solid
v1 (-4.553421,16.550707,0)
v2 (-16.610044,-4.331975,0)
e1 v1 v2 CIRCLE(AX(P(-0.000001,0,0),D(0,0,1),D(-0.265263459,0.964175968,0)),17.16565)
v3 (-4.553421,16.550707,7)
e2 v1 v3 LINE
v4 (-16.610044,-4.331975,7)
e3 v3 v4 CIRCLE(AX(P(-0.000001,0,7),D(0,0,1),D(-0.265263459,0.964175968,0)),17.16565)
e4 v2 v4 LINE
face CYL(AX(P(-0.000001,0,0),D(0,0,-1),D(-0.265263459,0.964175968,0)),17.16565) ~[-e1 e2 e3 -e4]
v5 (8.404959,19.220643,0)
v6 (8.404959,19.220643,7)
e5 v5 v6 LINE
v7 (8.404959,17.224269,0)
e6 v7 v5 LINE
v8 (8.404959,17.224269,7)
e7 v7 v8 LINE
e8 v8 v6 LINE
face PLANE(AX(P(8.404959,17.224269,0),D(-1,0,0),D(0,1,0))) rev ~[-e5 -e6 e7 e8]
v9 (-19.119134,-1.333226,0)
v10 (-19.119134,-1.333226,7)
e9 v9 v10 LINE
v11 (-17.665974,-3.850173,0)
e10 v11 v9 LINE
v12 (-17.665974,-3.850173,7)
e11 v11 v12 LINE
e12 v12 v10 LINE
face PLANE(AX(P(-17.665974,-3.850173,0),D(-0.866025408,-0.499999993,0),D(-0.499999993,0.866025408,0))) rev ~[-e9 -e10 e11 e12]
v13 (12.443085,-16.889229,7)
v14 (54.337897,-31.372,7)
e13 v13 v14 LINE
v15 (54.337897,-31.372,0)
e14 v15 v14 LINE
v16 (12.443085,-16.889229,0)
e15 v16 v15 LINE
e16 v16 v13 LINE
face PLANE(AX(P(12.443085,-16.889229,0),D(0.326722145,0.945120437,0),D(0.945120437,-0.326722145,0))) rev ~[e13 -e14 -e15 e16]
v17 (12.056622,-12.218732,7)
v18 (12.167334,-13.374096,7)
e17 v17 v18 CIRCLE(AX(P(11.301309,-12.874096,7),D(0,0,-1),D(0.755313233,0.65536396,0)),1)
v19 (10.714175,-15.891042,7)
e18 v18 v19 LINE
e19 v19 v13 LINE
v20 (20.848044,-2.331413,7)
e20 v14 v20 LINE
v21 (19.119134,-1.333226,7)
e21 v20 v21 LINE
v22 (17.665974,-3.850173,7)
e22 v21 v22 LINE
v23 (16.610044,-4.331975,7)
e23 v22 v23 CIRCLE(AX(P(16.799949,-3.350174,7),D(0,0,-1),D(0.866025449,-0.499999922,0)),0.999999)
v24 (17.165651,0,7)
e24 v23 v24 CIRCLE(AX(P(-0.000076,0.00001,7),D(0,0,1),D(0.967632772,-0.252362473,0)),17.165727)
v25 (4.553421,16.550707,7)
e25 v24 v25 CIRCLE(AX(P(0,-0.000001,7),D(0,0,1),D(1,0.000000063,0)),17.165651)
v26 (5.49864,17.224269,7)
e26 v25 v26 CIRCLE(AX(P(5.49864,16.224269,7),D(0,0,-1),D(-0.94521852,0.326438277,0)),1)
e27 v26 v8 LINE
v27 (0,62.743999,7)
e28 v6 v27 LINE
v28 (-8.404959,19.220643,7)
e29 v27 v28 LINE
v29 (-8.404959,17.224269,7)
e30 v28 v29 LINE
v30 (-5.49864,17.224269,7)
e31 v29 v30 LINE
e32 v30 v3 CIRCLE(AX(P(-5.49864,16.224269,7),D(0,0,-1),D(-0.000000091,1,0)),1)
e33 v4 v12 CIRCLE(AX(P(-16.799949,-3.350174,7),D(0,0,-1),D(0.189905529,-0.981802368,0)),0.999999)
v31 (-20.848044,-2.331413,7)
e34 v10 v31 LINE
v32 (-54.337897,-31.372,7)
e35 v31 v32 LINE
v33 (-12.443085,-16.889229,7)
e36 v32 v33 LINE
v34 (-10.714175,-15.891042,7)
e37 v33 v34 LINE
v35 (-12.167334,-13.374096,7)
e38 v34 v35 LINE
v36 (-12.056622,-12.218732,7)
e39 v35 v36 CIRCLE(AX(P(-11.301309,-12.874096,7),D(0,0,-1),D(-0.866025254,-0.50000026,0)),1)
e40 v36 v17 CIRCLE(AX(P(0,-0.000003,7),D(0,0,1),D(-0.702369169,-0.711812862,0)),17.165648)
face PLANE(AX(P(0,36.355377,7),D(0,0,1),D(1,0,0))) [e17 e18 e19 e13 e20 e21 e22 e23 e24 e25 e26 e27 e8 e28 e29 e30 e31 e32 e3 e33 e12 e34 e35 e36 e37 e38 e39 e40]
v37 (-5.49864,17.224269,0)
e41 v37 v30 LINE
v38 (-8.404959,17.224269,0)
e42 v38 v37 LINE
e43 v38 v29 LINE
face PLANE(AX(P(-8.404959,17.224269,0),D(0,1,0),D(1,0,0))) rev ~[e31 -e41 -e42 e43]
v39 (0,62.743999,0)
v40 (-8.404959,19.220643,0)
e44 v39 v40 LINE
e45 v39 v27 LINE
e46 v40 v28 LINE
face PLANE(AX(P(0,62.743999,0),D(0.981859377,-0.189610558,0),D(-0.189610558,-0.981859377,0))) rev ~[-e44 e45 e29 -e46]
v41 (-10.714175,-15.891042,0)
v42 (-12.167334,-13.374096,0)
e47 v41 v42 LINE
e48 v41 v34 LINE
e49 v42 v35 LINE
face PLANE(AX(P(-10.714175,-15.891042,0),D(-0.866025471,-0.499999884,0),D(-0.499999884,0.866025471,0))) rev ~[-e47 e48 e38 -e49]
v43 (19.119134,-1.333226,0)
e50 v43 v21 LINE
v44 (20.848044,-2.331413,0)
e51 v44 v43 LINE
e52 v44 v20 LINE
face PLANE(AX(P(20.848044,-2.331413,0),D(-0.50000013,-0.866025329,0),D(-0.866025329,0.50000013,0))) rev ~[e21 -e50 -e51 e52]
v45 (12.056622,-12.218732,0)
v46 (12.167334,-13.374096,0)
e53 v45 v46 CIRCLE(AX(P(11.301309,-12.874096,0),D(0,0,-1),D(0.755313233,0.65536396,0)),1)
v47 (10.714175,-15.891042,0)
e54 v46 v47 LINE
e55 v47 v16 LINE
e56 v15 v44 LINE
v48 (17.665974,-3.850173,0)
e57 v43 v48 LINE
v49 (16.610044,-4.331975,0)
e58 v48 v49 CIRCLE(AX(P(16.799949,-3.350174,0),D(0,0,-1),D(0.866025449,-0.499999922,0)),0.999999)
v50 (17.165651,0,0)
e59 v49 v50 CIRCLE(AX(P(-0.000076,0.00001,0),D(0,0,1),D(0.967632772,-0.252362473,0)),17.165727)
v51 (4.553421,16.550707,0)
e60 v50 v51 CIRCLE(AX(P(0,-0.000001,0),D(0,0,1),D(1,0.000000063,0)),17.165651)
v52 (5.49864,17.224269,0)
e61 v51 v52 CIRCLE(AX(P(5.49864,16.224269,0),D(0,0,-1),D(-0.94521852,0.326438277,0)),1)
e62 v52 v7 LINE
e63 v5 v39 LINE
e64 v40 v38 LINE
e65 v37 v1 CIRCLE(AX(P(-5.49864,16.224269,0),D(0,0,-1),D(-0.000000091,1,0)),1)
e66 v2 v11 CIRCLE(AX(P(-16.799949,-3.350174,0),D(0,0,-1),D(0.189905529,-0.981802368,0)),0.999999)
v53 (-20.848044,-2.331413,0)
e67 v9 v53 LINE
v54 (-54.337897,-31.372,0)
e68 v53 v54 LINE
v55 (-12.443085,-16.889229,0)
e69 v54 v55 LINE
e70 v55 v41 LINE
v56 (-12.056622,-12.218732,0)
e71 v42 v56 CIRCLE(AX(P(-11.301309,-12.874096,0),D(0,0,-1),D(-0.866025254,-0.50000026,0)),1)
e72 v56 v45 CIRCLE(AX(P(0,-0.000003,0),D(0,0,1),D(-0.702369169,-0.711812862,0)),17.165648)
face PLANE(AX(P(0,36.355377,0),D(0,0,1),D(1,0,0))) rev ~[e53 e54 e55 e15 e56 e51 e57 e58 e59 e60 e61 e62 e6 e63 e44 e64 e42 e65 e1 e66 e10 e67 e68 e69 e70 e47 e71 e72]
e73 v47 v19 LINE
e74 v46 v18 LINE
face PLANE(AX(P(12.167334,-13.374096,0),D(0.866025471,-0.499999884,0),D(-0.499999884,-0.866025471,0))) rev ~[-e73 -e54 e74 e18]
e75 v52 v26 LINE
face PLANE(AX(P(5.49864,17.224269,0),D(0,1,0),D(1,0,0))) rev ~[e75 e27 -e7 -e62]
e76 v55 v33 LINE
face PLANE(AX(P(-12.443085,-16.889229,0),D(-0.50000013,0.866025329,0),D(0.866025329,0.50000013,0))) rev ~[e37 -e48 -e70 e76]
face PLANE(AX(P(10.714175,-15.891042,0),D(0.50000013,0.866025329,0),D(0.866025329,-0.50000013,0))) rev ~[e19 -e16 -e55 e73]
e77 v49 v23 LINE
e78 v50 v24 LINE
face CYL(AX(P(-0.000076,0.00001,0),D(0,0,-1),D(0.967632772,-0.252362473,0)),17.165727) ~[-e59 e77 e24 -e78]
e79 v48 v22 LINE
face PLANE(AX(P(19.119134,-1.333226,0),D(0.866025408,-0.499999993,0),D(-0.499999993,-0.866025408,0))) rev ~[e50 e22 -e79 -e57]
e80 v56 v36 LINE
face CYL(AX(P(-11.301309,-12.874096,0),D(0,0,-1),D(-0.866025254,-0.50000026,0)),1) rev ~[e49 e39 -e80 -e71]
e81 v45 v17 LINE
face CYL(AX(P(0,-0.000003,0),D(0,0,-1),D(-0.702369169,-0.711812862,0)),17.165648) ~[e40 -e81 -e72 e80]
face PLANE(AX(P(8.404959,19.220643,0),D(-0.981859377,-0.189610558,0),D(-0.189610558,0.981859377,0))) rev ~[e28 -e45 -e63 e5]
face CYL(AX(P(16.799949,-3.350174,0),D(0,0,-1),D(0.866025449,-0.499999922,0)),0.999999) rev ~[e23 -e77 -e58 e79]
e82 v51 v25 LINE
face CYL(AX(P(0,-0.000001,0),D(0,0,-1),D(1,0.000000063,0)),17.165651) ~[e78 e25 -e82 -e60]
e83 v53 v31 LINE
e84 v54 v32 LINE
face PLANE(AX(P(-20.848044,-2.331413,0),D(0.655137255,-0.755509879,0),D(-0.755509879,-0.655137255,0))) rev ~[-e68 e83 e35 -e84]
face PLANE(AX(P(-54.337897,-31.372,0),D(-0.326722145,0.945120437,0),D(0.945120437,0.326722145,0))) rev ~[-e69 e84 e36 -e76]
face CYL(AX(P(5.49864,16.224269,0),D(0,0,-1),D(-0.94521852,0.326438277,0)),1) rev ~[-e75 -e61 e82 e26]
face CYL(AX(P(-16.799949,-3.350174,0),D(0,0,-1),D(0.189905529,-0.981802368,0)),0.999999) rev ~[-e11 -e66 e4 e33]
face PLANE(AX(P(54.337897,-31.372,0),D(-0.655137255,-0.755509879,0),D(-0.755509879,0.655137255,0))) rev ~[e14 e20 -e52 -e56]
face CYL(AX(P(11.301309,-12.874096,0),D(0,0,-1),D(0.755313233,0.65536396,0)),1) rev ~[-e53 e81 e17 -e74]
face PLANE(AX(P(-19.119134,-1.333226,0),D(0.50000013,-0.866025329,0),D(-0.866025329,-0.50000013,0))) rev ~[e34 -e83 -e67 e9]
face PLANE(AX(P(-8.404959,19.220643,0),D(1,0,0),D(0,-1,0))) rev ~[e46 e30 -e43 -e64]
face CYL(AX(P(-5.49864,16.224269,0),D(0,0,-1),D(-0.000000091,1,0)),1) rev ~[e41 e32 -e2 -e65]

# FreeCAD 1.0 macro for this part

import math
import FreeCAD as App
import Part
import Sketcher

V = App.Vector

doc = App.newDocument("Part")
params = doc.addObject("Spreadsheet::Sheet", "Params")
for row, (alias, value) in enumerate([
    ("sketch1_radius", "1 mm"),
    ("sketch1_radius2", "0.999999 mm"),
    ("sketch1_radius3", "1 mm"),
    ("sketch1_radius4", "1 mm"),
    ("sketch1_radius5", "0.999999 mm"),
    ("pad1_length", "7 mm"),
], start=1):
    params.set(f"A{row}", alias)
    params.set(f"B{row}", "=" + value)
    params.setAlias(f"B{row}", alias)

body = doc.addObject("PartDesign::Body", "Body")

# Sketch on XY plane
sketch1 = doc.addObject("Sketcher::SketchObject", "Sketch")
body.addObject(sketch1)
sketch1.AttachmentSupport = (doc.XY_Plane, [""])
sketch1.MapMode = "FlatFace"
sketch1.addGeometry([
    Part.LineSegment(V(-8.404959, 17.224269, 0), V(-5.49864, 17.224269, 0)),  # 0
    Part.ArcOfCircle(Part.Circle(V(-5.49864, 16.224269, 0), V(0, 0, 1), 1), math.radians(19.052735), math.radians(90.000005)),  # 1
    Part.ArcOfCircle(Part.Circle(V(-0.000001, 0, 0), V(0, 0, 1), 17.16565), math.radians(105.382608), math.radians(194.617388)),  # 2
    Part.ArcOfCircle(Part.Circle(V(-16.799949, -3.350174, 0), V(0, 0, 1), 0.999999), math.radians(-150.000005), math.radians(-79.052729)),  # 3
    Part.LineSegment(V(-17.665974, -3.850173, 0), V(-19.119134, -1.333226, 0)),  # 4
    Part.LineSegment(V(-19.119134, -1.333226, 0), V(-20.848044, -2.331413, 0)),  # 5
    Part.LineSegment(V(-20.848044, -2.331413, 0), V(-54.337897, -31.372, 0)),  # 6
    Part.LineSegment(V(-54.337897, -31.372, 0), V(-12.443085, -16.889229, 0)),  # 7
    Part.LineSegment(V(-12.443085, -16.889229, 0), V(-10.714175, -15.891042, 0)),  # 8
    Part.LineSegment(V(-10.714175, -15.891042, 0), V(-12.167334, -13.374096, 0)),  # 9
    Part.ArcOfCircle(Part.Circle(V(-11.301309, -12.874096, 0), V(0, 0, 1), 1), math.radians(139.052747), math.radians(210.000017)),  # 10
    Part.ArcOfCircle(Part.Circle(V(0, -0.000003, 0), V(0, 0, 1), 17.165648), math.radians(-134.617393), math.radians(-45.382607)),  # 11
    Part.ArcOfCircle(Part.Circle(V(11.301309, -12.874096, 0), V(0, 0, 1), 1), math.radians(-30.000017), math.radians(40.947253)),  # 12
    Part.LineSegment(V(12.167334, -13.374096, 0), V(10.714175, -15.891042, 0)),  # 13
    Part.LineSegment(V(10.714175, -15.891042, 0), V(12.443085, -16.889229, 0)),  # 14
    Part.LineSegment(V(12.443085, -16.889229, 0), V(54.337897, -31.372, 0)),  # 15
    Part.LineSegment(V(54.337897, -31.372, 0), V(20.848044, -2.331413, 0)),  # 16
    Part.LineSegment(V(20.848044, -2.331413, 0), V(19.119134, -1.333226, 0)),  # 17
    Part.LineSegment(V(19.119134, -1.333226, 0), V(17.665974, -3.850173, 0)),  # 18
    Part.ArcOfCircle(Part.Circle(V(16.799949, -3.350174, 0), V(0, 0, 1), 0.999999), math.radians(-100.947271), math.radians(-29.999995)),  # 19
    Part.ArcOfCircle(Part.Circle(V(-0.000076, 0.00001, 0), V(0, 0, 1), 17.165727), math.radians(-14.617355), math.radians(-0.000035)),  # 20
    Part.ArcOfCircle(Part.Circle(V(0, -0.000001, 0), V(0, 0, 1), 17.165651), math.radians(0.000004), math.radians(74.617388)),  # 21
    Part.ArcOfCircle(Part.Circle(V(5.49864, 16.224269, 0), V(0, 0, 1), 1), math.radians(89.999995), math.radians(160.947265)),  # 22
    Part.LineSegment(V(5.49864, 17.224269, 0), V(8.404959, 17.224269, 0)),  # 23
    Part.LineSegment(V(8.404959, 17.224269, 0), V(8.404959, 19.220643, 0)),  # 24
    Part.LineSegment(V(8.404959, 19.220643, 0), V(0, 62.743999, 0)),  # 25
    Part.LineSegment(V(0, 62.743999, 0), V(-8.404959, 19.220643, 0)),  # 26
    Part.LineSegment(V(-8.404959, 19.220643, 0), V(-8.404959, 17.224269, 0)),  # 27
], False)
sketch1.addConstraint([
    Sketcher.Constraint("Coincident", 0, 2, 1, 2),
    Sketcher.Constraint("Coincident", 1, 1, 2, 1),
    Sketcher.Constraint("Coincident", 2, 2, 3, 2),
    Sketcher.Constraint("Coincident", 3, 1, 4, 1),
    Sketcher.Constraint("Coincident", 4, 2, 5, 1),
    Sketcher.Constraint("Coincident", 5, 2, 6, 1),
    Sketcher.Constraint("Coincident", 6, 2, 7, 1),
    Sketcher.Constraint("Coincident", 7, 2, 8, 1),
    Sketcher.Constraint("Coincident", 8, 2, 9, 1),
    Sketcher.Constraint("Coincident", 9, 2, 10, 2),
    Sketcher.Constraint("Coincident", 10, 1, 11, 1),
    Sketcher.Constraint("Coincident", 11, 2, 12, 2),
    Sketcher.Constraint("Coincident", 12, 1, 13, 1),
    Sketcher.Constraint("Coincident", 13, 2, 14, 1),
    Sketcher.Constraint("Coincident", 14, 2, 15, 1),
    Sketcher.Constraint("Coincident", 15, 2, 16, 1),
    Sketcher.Constraint("Coincident", 16, 2, 17, 1),
    Sketcher.Constraint("Coincident", 17, 2, 18, 1),
    Sketcher.Constraint("Coincident", 18, 2, 19, 2),
    Sketcher.Constraint("Coincident", 19, 1, 20, 1),
    Sketcher.Constraint("Coincident", 20, 2, 21, 1),
    Sketcher.Constraint("Coincident", 21, 2, 22, 2),
    Sketcher.Constraint("Coincident", 22, 1, 23, 1),
    Sketcher.Constraint("Coincident", 23, 2, 24, 1),
    Sketcher.Constraint("Coincident", 24, 2, 25, 1),
    Sketcher.Constraint("Coincident", 25, 2, 26, 1),
    Sketcher.Constraint("Coincident", 26, 2, 27, 1),
    Sketcher.Constraint("Coincident", 27, 2, 0, 1),
    Sketcher.Constraint("Horizontal", 0),
    Sketcher.Constraint("Horizontal", 23),
    Sketcher.Constraint("Vertical", 24),
    Sketcher.Constraint("Vertical", 27),
    Sketcher.Constraint("Coincident", 2, 3, -1, 1),
    Sketcher.Constraint("Coincident", 11, 3, -1, 1),
    Sketcher.Constraint("Coincident", 21, 3, -1, 1),
    Sketcher.Constraint("PointOnObject", 20, 2, -1),
    Sketcher.Constraint("PointOnObject", 25, 2, -2),
    Sketcher.Constraint("Radius", 1, 1.0),
    Sketcher.Constraint("Radius", 3, 0.999999),
    Sketcher.Constraint("Radius", 10, 1.0),
    Sketcher.Constraint("Radius", 12, 1.0),
    Sketcher.Constraint("Radius", 19, 0.999999),
    Sketcher.Constraint("Radius", 22, 1.0),
    Sketcher.Constraint("DistanceY", 22, 3, 0, 2, 1.0),
    Sketcher.Constraint("DistanceY", 3, 1, 3, 3, 0.499999),
    Sketcher.Constraint("DistanceY", 9, 2, 10, 3, 0.5),
    Sketcher.Constraint("DistanceY", 12, 1, 12, 3, 0.5),
    Sketcher.Constraint("DistanceY", 18, 2, 19, 3, 0.499999),
    Sketcher.Constraint("Radius", 2, 17.16565),
    Sketcher.Constraint("Radius", 11, 17.165648),
    Sketcher.Constraint("Radius", 21, 17.165651),
    Sketcher.Constraint("DistanceY", 6, 2, -1, 1, 31.372),
    Sketcher.Constraint("DistanceY", 15, 2, -1, 1, 31.372),
    Sketcher.Constraint("DistanceY", -1, 1, 25, 2, 62.743999),
    Sketcher.Constraint("Radius", 20, 17.165727),
    Sketcher.Constraint("DistanceX", 5, 2, 2, 2, 4.238),
    Sketcher.Constraint("DistanceX", 19, 1, 16, 2, 4.238),
    Sketcher.Constraint("DistanceX", 0, 1, 0, 2, 2.906319),
    Sketcher.Constraint("DistanceX", 23, 1, 23, 2, 2.906319),
    Sketcher.Constraint("DistanceY", 2, 2, 3, 3, 0.981801),
    Sketcher.Constraint("DistanceX", 3, 1, 8, 2, 6.951799),
    Sketcher.Constraint("DistanceX", 12, 1, 17, 2, 6.9518),
    Sketcher.Constraint("DistanceY", 19, 1, 19, 3, 0.981801),
    Sketcher.Constraint("DistanceX", 19, 3, 20, 2, 0.365702),
    Sketcher.Constraint("DistanceX", 0, 2, 23, 2, 13.903599),
    Sketcher.Constraint("Distance", 4, 2.90632),
    Sketcher.Constraint("Distance", 9, 2.906319),
    Sketcher.Constraint("Distance", 13, 2.906319),
    Sketcher.Constraint("Distance", 18, 2.90632),
    Sketcher.Constraint("DistanceY", 24, 1, 24, 2, 1.996374),
    Sketcher.Constraint("DistanceY", 27, 2, 27, 1, 1.996374),
    Sketcher.Constraint("DistanceX", 1, 3, -1, 1, 5.49864),
    Sketcher.Constraint("DistanceY", -1, 1, 1, 3, 16.224269),
    Sketcher.Constraint("DistanceX", 3, 3, -1, 1, 16.799949),
    Sketcher.Constraint("DistanceX", 10, 3, -1, 1, 11.301309),
    Sketcher.Constraint("DistanceX", -1, 1, 12, 3, 11.301309),
    Sketcher.Constraint("DistanceX", -1, 1, 22, 3, 5.49864),
    Sketcher.Constraint("DistanceX", 0, 2, -1, 1, 5.49864),
    Sketcher.Constraint("DistanceY", 7, 2, -1, 1, 16.889229),
    Sketcher.Constraint("DistanceY", 10, 1, -1, 1, 12.218732),
    Sketcher.Constraint("DistanceY", 14, 2, -1, 1, 16.889229),
    Sketcher.Constraint("DistanceY", 19, 3, 11, 3, 3.350171),
    Sketcher.Constraint("DistanceX", 4, 2, 3, 1, 1.45316),
    Sketcher.Constraint("DistanceY", 3, 1, 5, 2, 1.51876),
    Sketcher.Constraint("DistanceX", 2, 2, 7, 2, 4.166959),
    Sketcher.Constraint("DistanceY", 11, 2, 19, 3, 8.868558),
    Sketcher.Constraint("DistanceX", 13, 2, 12, 1, 1.453159),
    Sketcher.Constraint("DistanceX", 13, 2, 14, 2, 1.72891),
    Sketcher.Constraint("DistanceY", 19, 3, 16, 2, 1.018761),
    Sketcher.Constraint("Distance", 6, 44.327485),
    Sketcher.Constraint("Distance", 15, 44.327485),
])
sketch1.setExpression("Constraints[37]", "Params.sketch1_radius")
sketch1.setExpression("Constraints[38]", "Params.sketch1_radius2")
sketch1.setExpression("Constraints[39]", "Params.sketch1_radius3")
sketch1.setExpression("Constraints[40]", "Params.sketch1_radius4")
sketch1.setExpression("Constraints[41]", "Params.sketch1_radius5")
pad1 = doc.addObject("PartDesign::Pad", "Pad")
body.addObject(pad1)
pad1.Profile = sketch1
pad1.setExpression("Length", "Params.pad1_length")

doc.recompute()
